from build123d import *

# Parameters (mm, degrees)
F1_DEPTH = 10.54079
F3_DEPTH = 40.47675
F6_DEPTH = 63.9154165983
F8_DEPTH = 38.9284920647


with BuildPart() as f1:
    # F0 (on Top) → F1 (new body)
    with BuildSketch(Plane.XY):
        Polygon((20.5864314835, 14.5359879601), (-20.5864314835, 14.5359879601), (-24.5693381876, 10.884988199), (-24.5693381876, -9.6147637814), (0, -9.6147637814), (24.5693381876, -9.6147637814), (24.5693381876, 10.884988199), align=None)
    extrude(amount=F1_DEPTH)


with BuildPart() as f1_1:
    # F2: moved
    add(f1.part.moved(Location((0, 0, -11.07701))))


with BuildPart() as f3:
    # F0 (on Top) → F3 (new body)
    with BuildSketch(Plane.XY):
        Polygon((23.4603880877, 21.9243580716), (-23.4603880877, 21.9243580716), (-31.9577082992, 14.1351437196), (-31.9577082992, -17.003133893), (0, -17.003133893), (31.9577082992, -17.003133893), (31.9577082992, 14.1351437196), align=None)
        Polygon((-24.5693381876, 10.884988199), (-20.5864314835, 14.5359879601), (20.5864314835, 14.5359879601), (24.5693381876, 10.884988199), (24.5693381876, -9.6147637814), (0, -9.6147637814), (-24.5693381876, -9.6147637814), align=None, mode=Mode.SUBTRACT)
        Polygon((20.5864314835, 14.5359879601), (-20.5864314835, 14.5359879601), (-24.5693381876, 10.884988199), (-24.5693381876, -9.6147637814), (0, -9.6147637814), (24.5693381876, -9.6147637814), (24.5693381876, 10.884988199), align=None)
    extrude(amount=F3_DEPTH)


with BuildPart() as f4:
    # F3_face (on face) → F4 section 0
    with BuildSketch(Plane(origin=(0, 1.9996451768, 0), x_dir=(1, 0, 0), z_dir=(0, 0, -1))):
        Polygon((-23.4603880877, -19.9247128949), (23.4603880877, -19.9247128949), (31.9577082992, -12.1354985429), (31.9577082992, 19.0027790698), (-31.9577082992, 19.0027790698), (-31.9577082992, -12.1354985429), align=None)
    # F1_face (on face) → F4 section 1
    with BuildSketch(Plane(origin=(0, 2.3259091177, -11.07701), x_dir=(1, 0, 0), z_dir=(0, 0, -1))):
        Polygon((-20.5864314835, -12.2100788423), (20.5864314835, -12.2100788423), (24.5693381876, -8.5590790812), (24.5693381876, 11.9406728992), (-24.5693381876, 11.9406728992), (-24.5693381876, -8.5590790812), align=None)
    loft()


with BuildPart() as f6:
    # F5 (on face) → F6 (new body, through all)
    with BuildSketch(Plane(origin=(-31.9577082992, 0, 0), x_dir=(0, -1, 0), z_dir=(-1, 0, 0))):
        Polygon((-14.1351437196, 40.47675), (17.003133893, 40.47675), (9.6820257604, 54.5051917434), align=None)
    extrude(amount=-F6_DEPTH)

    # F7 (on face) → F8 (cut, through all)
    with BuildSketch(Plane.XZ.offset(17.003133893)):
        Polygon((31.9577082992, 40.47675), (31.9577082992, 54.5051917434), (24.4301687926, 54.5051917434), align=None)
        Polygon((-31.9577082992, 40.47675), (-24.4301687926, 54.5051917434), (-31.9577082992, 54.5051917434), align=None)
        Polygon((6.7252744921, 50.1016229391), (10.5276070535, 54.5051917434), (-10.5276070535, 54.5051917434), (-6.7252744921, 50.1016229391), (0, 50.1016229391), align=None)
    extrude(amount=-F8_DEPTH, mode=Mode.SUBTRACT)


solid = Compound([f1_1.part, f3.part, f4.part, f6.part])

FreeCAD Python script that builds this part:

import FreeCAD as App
import Part
import Sketcher
from FreeCAD import Vector
Q = App.Units.Quantity

doc = App.newDocument("Part")
params = doc.addObject("Spreadsheet::Sheet", "Params")
for row, (alias, value) in enumerate([
    ("pad1_length", "10.54079 mm"),
    ("pad2_length", "40.47675 mm"),
    ("pad3_length", "63.915417 mm"),
], start=1):
    params.set(f"A{row}", alias)
    params.set(f"B{row}", "=" + value)
    params.setAlias(f"B{row}", alias)

body = doc.addObject("PartDesign::Body", "Body")

sketch1 = doc.addObject("Sketcher::SketchObject", "Sketch")
body.addObject(sketch1)
sketch1.AttachmentSupport = (doc.XY_Plane, [""])
sketch1.MapMode = "FlatFace"
sketch1.addGeometry(Part.LineSegment(Vector(20.586431, 14.535988, 0), Vector(-20.586431, 14.535988, 0)), False)
sketch1.addGeometry(Part.LineSegment(Vector(-20.586431, 14.535988, 0), Vector(-24.569338, 10.884988, 0)), False)
sketch1.addGeometry(Part.LineSegment(Vector(-24.569338, 10.884988, 0), Vector(-24.569338, -9.614764, 0)), False)
sketch1.addGeometry(Part.LineSegment(Vector(-24.569338, -9.614764, 0), Vector(24.569338, -9.614764, 0)), False)
sketch1.addGeometry(Part.LineSegment(Vector(24.569338, -9.614764, 0), Vector(24.569338, 10.884988, 0)), False)
sketch1.addGeometry(Part.LineSegment(Vector(24.569338, 10.884988, 0), Vector(20.586431, 14.535988, 0)), False)
sketch1.addConstraint(Sketcher.Constraint("Coincident", 0, 2, 1, 1))
sketch1.addConstraint(Sketcher.Constraint("Coincident", 1, 2, 2, 1))
sketch1.addConstraint(Sketcher.Constraint("Coincident", 2, 2, 3, 1))
sketch1.addConstraint(Sketcher.Constraint("Coincident", 3, 2, 4, 1))
sketch1.addConstraint(Sketcher.Constraint("Coincident", 4, 2, 5, 1))
sketch1.addConstraint(Sketcher.Constraint("Coincident", 5, 2, 0, 1))
sketch1.addConstraint(Sketcher.Constraint("Horizontal", 0))
sketch1.addConstraint(Sketcher.Constraint("Vertical", 2))
sketch1.addConstraint(Sketcher.Constraint("Horizontal", 3))
sketch1.addConstraint(Sketcher.Constraint("Vertical", 4))
sketch1.addConstraint(Sketcher.Constraint("Symmetric", 1, 2, 4, 2, -2))
sketch1.addConstraint(Sketcher.Constraint("Equal", 1, 5))
sketch1.addConstraint(Sketcher.Constraint("DistanceY", 1, 2, 0, 2, Q("3.651 mm")))
sketch1.addConstraint(Sketcher.Constraint("DistanceY", 2, 2, 2, 1, Q("20.499752 mm")))
sketch1.addConstraint(Sketcher.Constraint("DistanceX", 0, 2, 0, 1, Q("41.172863 mm")))
sketch1.addConstraint(Sketcher.Constraint("DistanceX", 3, 1, 3, 2, Q("49.138676 mm")))
sketch1.addConstraint(Sketcher.Constraint("DistanceY", -1, 1, 1, 2, Q("10.884988 mm")))
pad1 = doc.addObject("PartDesign::Pad", "Pad")
body.addObject(pad1)
pad1.Profile = sketch1
pad1.setExpression("Length", "Params.pad1_length")
body2 = doc.addObject("PartDesign::Body", "Body001")
doc.recompute()

body.Placement = App.Placement(Vector(0, 0, -11.07701), App.Rotation(Vector(0, 0, 1), 0))
boolean = doc.addObject("PartDesign::Boolean", "Boolean")
body2.addObject(boolean)
boolean.Type = "Fuse"
boolean.addObjects([body])
body3 = doc.addObject("PartDesign::Body", "Body002")

sketch2 = doc.addObject("Sketcher::SketchObject", "Sketch001")
body3.addObject(sketch2)
sketch2.AttachmentSupport = (doc.getObject("XY_Plane002"), [""])
sketch2.MapMode = "FlatFace"
sketch2.addGeometry(Part.LineSegment(Vector(23.460388, 21.924358, 0), Vector(-23.460388, 21.924358, 0)), False)
sketch2.addGeometry(Part.LineSegment(Vector(-23.460388, 21.924358, 0), Vector(-31.957708, 14.135144, 0)), False)
sketch2.addGeometry(Part.LineSegment(Vector(-31.957708, 14.135144, 0), Vector(-31.957708, -17.003134, 0)), False)
sketch2.addGeometry(Part.LineSegment(Vector(-31.957708, -17.003134, 0), Vector(31.957708, -17.003134, 0)), False)
sketch2.addGeometry(Part.LineSegment(Vector(31.957708, -17.003134, 0), Vector(31.957708, 14.135144, 0)), False)
sketch2.addGeometry(Part.LineSegment(Vector(31.957708, 14.135144, 0), Vector(23.460388, 21.924358, 0)), False)
sketch2.addConstraint(Sketcher.Constraint("Coincident", 0, 2, 1, 1))
sketch2.addConstraint(Sketcher.Constraint("Coincident", 1, 2, 2, 1))
sketch2.addConstraint(Sketcher.Constraint("Coincident", 2, 2, 3, 1))
sketch2.addConstraint(Sketcher.Constraint("Coincident", 3, 2, 4, 1))
sketch2.addConstraint(Sketcher.Constraint("Coincident", 4, 2, 5, 1))
sketch2.addConstraint(Sketcher.Constraint("Coincident", 5, 2, 0, 1))
sketch2.addConstraint(Sketcher.Constraint("Horizontal", 0))
sketch2.addConstraint(Sketcher.Constraint("Vertical", 2))
sketch2.addConstraint(Sketcher.Constraint("Horizontal", 3))
sketch2.addConstraint(Sketcher.Constraint("Vertical", 4))
sketch2.addConstraint(Sketcher.Constraint("Symmetric", 1, 2, 4, 2, -2))
sketch2.addConstraint(Sketcher.Constraint("Equal", 1, 5))
sketch2.addConstraint(Sketcher.Constraint("Distance", 1, Q("11.527199 mm")))
sketch2.addConstraint(Sketcher.Constraint("DistanceX", 0, 2, 0, 1, Q("46.920776 mm")))
sketch2.addConstraint(Sketcher.Constraint("DistanceX", 3, 1, 3, 2, Q("63.915417 mm")))
sketch2.addConstraint(Sketcher.Constraint("DistanceY", 2, 2, 2, 1, Q("31.138278 mm")))
sketch2.addConstraint(Sketcher.Constraint("DistanceY", -1, 1, 0, 2, Q("21.924358 mm")))
pad2 = doc.addObject("PartDesign::Pad", "Pad001")
body3.addObject(pad2)
pad2.Profile = sketch2
pad2.setExpression("Length", "Params.pad2_length")
body4 = doc.addObject("PartDesign::Body", "Body003")

sketch3 = doc.addObject("Sketcher::SketchObject", "Sketch002")
body4.addObject(sketch3)
sketch3.AttachmentSupport = (doc.getObject("XY_Plane003"), [""])
sketch3.MapMode = "FlatFace"
sketch3.addGeometry(Part.LineSegment(Vector(-23.460388, 21.924358, 0), Vector(23.460388, 21.924358, 0)), False)
sketch3.addGeometry(Part.LineSegment(Vector(23.460388, 21.924358, 0), Vector(31.957708, 14.135144, 0)), False)
sketch3.addGeometry(Part.LineSegment(Vector(31.957708, 14.135144, 0), Vector(31.957708, -17.003134, 0)), False)
sketch3.addGeometry(Part.LineSegment(Vector(31.957708, -17.003134, 0), Vector(-31.957708, -17.003134, 0)), False)
sketch3.addGeometry(Part.LineSegment(Vector(-31.957708, -17.003134, 0), Vector(-31.957708, 14.135144, 0)), False)
sketch3.addGeometry(Part.LineSegment(Vector(-31.957708, 14.135144, 0), Vector(-23.460388, 21.924358, 0)), False)
sketch3.addConstraint(Sketcher.Constraint("Coincident", 0, 2, 1, 1))
sketch3.addConstraint(Sketcher.Constraint("Coincident", 1, 2, 2, 1))
sketch3.addConstraint(Sketcher.Constraint("Coincident", 2, 2, 3, 1))
sketch3.addConstraint(Sketcher.Constraint("Coincident", 3, 2, 4, 1))
sketch3.addConstraint(Sketcher.Constraint("Coincident", 4, 2, 5, 1))
sketch3.addConstraint(Sketcher.Constraint("Coincident", 5, 2, 0, 1))
sketch3.addConstraint(Sketcher.Constraint("Horizontal", 0))
sketch3.addConstraint(Sketcher.Constraint("Vertical", 2))
sketch3.addConstraint(Sketcher.Constraint("Horizontal", 3))
sketch3.addConstraint(Sketcher.Constraint("Vertical", 4))
sketch3.addConstraint(Sketcher.Constraint("Symmetric", 1, 2, 4, 2, -2))
sketch3.addConstraint(Sketcher.Constraint("Equal", 1, 5))
sketch3.addConstraint(Sketcher.Constraint("Distance", 1, Q("11.527199 mm")))
sketch3.addConstraint(Sketcher.Constraint("DistanceX", 0, 1, 0, 2, Q("46.920776 mm")))
sketch3.addConstraint(Sketcher.Constraint("DistanceX", 3, 2, 3, 1, Q("63.915417 mm")))
sketch3.addConstraint(Sketcher.Constraint("DistanceY", 2, 2, 2, 1, Q("31.138278 mm")))
sketch3.addConstraint(Sketcher.Constraint("DistanceY", -1, 1, 0, 2, Q("21.924358 mm")))

sketch4 = doc.addObject("Sketcher::SketchObject", "Sketch003")
body4.addObject(sketch4)
sketch4.AttachmentSupport = (doc.getObject("XY_Plane003"), [""])
sketch4.MapMode = "FlatFace"
sketch4.AttachmentOffset = App.Placement(Vector(0, 0, -11.07701), App.Rotation())
sketch4.addGeometry(Part.LineSegment(Vector(-20.586431, 14.535988, 0), Vector(20.586431, 14.535988, 0)), False)
sketch4.addGeometry(Part.LineSegment(Vector(20.586431, 14.535988, 0), Vector(24.569338, 10.884988, 0)), False)
sketch4.addGeometry(Part.LineSegment(Vector(24.569338, 10.884988, 0), Vector(24.569338, -9.614764, 0)), False)
sketch4.addGeometry(Part.LineSegment(Vector(24.569338, -9.614764, 0), Vector(-24.569338, -9.614764, 0)), False)
sketch4.addGeometry(Part.LineSegment(Vector(-24.569338, -9.614764, 0), Vector(-24.569338, 10.884988, 0)), False)
sketch4.addGeometry(Part.LineSegment(Vector(-24.569338, 10.884988, 0), Vector(-20.586431, 14.535988, 0)), False)
sketch4.addConstraint(Sketcher.Constraint("Coincident", 0, 2, 1, 1))
sketch4.addConstraint(Sketcher.Constraint("Coincident", 1, 2, 2, 1))
sketch4.addConstraint(Sketcher.Constraint("Coincident", 2, 2, 3, 1))
sketch4.addConstraint(Sketcher.Constraint("Coincident", 3, 2, 4, 1))
sketch4.addConstraint(Sketcher.Constraint("Coincident", 4, 2, 5, 1))
sketch4.addConstraint(Sketcher.Constraint("Coincident", 5, 2, 0, 1))
sketch4.addConstraint(Sketcher.Constraint("Horizontal", 0))
sketch4.addConstraint(Sketcher.Constraint("Vertical", 2))
sketch4.addConstraint(Sketcher.Constraint("Horizontal", 3))
sketch4.addConstraint(Sketcher.Constraint("Vertical", 4))
sketch4.addConstraint(Sketcher.Constraint("Symmetric", 1, 2, 4, 2, -2))
sketch4.addConstraint(Sketcher.Constraint("Equal", 1, 5))
sketch4.addConstraint(Sketcher.Constraint("DistanceY", 1, 2, 0, 2, Q("3.651 mm")))
sketch4.addConstraint(Sketcher.Constraint("DistanceY", 2, 2, 2, 1, Q("20.499752 mm")))
sketch4.addConstraint(Sketcher.Constraint("DistanceX", 0, 1, 0, 2, Q("41.172863 mm")))
sketch4.addConstraint(Sketcher.Constraint("DistanceX", 3, 2, 3, 1, Q("49.138676 mm")))
sketch4.addConstraint(Sketcher.Constraint("DistanceY", -1, 1, 1, 2, Q("10.884988 mm")))

additiveloft = doc.addObject("PartDesign::AdditiveLoft", "AdditiveLoft")
body4.addObject(additiveloft)
additiveloft.Profile = sketch3
additiveloft.Sections = [sketch4]
body5 = doc.addObject("PartDesign::Body", "Body004")

sketch5 = doc.addObject("Sketcher::SketchObject", "Sketch004")
body5.addObject(sketch5)
sketch5.AttachmentSupport = (doc.getObject("YZ_Plane004"), [""])
sketch5.MapMode = "FlatFace"
sketch5.AttachmentOffset = App.Placement(Vector(0, 0, -31.957708), App.Rotation())
sketch5.addGeometry(Part.LineSegment(Vector(14.135144, 40.47675, 0), Vector(-17.003134, 40.47675, 0)), False)
sketch5.addGeometry(Part.LineSegment(Vector(-17.003134, 40.47675, 0), Vector(-9.682026, 54.505192, 0)), False)
sketch5.addGeometry(Part.LineSegment(Vector(-9.682026, 54.505192, 0), Vector(14.135144, 40.47675, 0)), False)
sketch5.addConstraint(Sketcher.Constraint("Coincident", 0, 2, 1, 1))
sketch5.addConstraint(Sketcher.Constraint("Coincident", 1, 2, 2, 1))
sketch5.addConstraint(Sketcher.Constraint("Coincident", 2, 2, 0, 1))
sketch5.addConstraint(Sketcher.Constraint("Horizontal", 0))
sketch5.addConstraint(Sketcher.Constraint("Distance", 1, Q("15.8239 mm")))
sketch5.addConstraint(Sketcher.Constraint("Distance", 2, Q("27.64154 mm")))
sketch5.addConstraint(Sketcher.Constraint("DistanceX", 0, 2, 0, 1, Q("31.138278 mm")))
sketch5.addConstraint(Sketcher.Constraint("DistanceY", -1, 1, 0, 2, Q("40.47675 mm")))
sketch5.addConstraint(Sketcher.Constraint("DistanceX", 0, 2, -1, 1, Q("17.003134 mm")))
pad3 = doc.addObject("PartDesign::Pad", "Pad002")
body5.addObject(pad3)
pad3.Profile = sketch5
pad3.setExpression("Length", "Params.pad3_length")

sketch6 = doc.addObject("Sketcher::SketchObject", "Sketch005")
body5.addObject(sketch6)
sketch6.AttachmentSupport = (doc.getObject("XZ_Plane004"), [""])
sketch6.MapMode = "FlatFace"
sketch6.AttachmentOffset = App.Placement(Vector(0, 0, 17.003134), App.Rotation())
sketch6.addGeometry(Part.LineSegment(Vector(31.957708, 40.47675, 0), Vector(31.957708, 54.505192, 0)), False)
sketch6.addGeometry(Part.LineSegment(Vector(31.957708, 54.505192, 0), Vector(24.430169, 54.505192, 0)), False)
sketch6.addGeometry(Part.LineSegment(Vector(24.430169, 54.505192, 0), Vector(31.957708, 40.47675, 0)), False)
sketch6.addGeometry(Part.LineSegment(Vector(-31.957708, 40.47675, 0), Vector(-24.430169, 54.505192, 0)), False)
sketch6.addGeometry(Part.LineSegment(Vector(-24.430169, 54.505192, 0), Vector(-31.957708, 54.505192, 0)), False)
sketch6.addGeometry(Part.LineSegment(Vector(-31.957708, 54.505192, 0), Vector(-31.957708, 40.47675, 0)), False)
sketch6.addGeometry(Part.LineSegment(Vector(6.725274, 50.101623, 0), Vector(10.527607, 54.505192, 0)), False)
sketch6.addGeometry(Part.LineSegment(Vector(10.527607, 54.505192, 0), Vector(-10.527607, 54.505192, 0)), False)
sketch6.addGeometry(Part.LineSegment(Vector(-10.527607, 54.505192, 0), Vector(-6.725274, 50.101623, 0)), False)
sketch6.addGeometry(Part.LineSegment(Vector(-6.725274, 50.101623, 0), Vector(6.725274, 50.101623, 0)), False)
sketch6.addConstraint(Sketcher.Constraint("Coincident", 0, 2, 1, 1))
sketch6.addConstraint(Sketcher.Constraint("Coincident", 1, 2, 2, 1))
sketch6.addConstraint(Sketcher.Constraint("Coincident", 2, 2, 0, 1))
sketch6.addConstraint(Sketcher.Constraint("Coincident", 3, 2, 4, 1))
sketch6.addConstraint(Sketcher.Constraint("Coincident", 4, 2, 5, 1))
sketch6.addConstraint(Sketcher.Constraint("Coincident", 5, 2, 3, 1))
sketch6.addConstraint(Sketcher.Constraint("Coincident", 6, 2, 7, 1))
sketch6.addConstraint(Sketcher.Constraint("Coincident", 7, 2, 8, 1))
sketch6.addConstraint(Sketcher.Constraint("Coincident", 8, 2, 9, 1))
sketch6.addConstraint(Sketcher.Constraint("Coincident", 9, 2, 6, 1))
sketch6.addConstraint(Sketcher.Constraint("Vertical", 0))
sketch6.addConstraint(Sketcher.Constraint("Horizontal", 1))
sketch6.addConstraint(Sketcher.Constraint("Horizontal", 4))
sketch6.addConstraint(Sketcher.Constraint("Vertical", 5))
sketch6.addConstraint(Sketcher.Constraint("Horizontal", 7))
sketch6.addConstraint(Sketcher.Constraint("Horizontal", 9))
sketch6.addConstraint(Sketcher.Constraint("Symmetric", 1, 2, 3, 2, -2))
sketch6.addConstraint(Sketcher.Constraint("Symmetric", 2, 2, 5, 2, -2))
sketch6.addConstraint(Sketcher.Constraint("Horizontal", 4, 2, 6, 2))
sketch6.addConstraint(Sketcher.Constraint("Equal", 6, 8))
sketch6.addConstraint(Sketcher.Constraint("DistanceX", 1, 2, 1, 1, Q("7.52754 mm")))
sketch6.addConstraint(Sketcher.Constraint("DistanceX", 9, 1, 9, 2, Q("13.450549 mm")))
sketch6.addConstraint(Sketcher.Constraint("DistanceY", 0, 1, 0, 2, Q("14.028442 mm")))
sketch6.addConstraint(Sketcher.Constraint("DistanceX", 6, 2, 0, 2, Q("21.430101 mm")))
sketch6.addConstraint(Sketcher.Constraint("DistanceX", 4, 2, 7, 2, Q("21.430101 mm")))
sketch6.addConstraint(Sketcher.Constraint("DistanceX", 7, 2, 7, 1, Q("21.055214 mm")))
sketch6.addConstraint(Sketcher.Constraint("DistanceY", -1, 1, 0, 2, Q("54.505192 mm")))
sketch6.addConstraint(Sketcher.Constraint("DistanceY", 8, 2, 7, 2, Q("4.403569 mm")))
pocket1 = doc.addObject("PartDesign::Pocket", "Pocket")
body5.addObject(pocket1)
pocket1.Profile = sketch6
pocket1.Type = "ThroughAll"

doc.recompute()
